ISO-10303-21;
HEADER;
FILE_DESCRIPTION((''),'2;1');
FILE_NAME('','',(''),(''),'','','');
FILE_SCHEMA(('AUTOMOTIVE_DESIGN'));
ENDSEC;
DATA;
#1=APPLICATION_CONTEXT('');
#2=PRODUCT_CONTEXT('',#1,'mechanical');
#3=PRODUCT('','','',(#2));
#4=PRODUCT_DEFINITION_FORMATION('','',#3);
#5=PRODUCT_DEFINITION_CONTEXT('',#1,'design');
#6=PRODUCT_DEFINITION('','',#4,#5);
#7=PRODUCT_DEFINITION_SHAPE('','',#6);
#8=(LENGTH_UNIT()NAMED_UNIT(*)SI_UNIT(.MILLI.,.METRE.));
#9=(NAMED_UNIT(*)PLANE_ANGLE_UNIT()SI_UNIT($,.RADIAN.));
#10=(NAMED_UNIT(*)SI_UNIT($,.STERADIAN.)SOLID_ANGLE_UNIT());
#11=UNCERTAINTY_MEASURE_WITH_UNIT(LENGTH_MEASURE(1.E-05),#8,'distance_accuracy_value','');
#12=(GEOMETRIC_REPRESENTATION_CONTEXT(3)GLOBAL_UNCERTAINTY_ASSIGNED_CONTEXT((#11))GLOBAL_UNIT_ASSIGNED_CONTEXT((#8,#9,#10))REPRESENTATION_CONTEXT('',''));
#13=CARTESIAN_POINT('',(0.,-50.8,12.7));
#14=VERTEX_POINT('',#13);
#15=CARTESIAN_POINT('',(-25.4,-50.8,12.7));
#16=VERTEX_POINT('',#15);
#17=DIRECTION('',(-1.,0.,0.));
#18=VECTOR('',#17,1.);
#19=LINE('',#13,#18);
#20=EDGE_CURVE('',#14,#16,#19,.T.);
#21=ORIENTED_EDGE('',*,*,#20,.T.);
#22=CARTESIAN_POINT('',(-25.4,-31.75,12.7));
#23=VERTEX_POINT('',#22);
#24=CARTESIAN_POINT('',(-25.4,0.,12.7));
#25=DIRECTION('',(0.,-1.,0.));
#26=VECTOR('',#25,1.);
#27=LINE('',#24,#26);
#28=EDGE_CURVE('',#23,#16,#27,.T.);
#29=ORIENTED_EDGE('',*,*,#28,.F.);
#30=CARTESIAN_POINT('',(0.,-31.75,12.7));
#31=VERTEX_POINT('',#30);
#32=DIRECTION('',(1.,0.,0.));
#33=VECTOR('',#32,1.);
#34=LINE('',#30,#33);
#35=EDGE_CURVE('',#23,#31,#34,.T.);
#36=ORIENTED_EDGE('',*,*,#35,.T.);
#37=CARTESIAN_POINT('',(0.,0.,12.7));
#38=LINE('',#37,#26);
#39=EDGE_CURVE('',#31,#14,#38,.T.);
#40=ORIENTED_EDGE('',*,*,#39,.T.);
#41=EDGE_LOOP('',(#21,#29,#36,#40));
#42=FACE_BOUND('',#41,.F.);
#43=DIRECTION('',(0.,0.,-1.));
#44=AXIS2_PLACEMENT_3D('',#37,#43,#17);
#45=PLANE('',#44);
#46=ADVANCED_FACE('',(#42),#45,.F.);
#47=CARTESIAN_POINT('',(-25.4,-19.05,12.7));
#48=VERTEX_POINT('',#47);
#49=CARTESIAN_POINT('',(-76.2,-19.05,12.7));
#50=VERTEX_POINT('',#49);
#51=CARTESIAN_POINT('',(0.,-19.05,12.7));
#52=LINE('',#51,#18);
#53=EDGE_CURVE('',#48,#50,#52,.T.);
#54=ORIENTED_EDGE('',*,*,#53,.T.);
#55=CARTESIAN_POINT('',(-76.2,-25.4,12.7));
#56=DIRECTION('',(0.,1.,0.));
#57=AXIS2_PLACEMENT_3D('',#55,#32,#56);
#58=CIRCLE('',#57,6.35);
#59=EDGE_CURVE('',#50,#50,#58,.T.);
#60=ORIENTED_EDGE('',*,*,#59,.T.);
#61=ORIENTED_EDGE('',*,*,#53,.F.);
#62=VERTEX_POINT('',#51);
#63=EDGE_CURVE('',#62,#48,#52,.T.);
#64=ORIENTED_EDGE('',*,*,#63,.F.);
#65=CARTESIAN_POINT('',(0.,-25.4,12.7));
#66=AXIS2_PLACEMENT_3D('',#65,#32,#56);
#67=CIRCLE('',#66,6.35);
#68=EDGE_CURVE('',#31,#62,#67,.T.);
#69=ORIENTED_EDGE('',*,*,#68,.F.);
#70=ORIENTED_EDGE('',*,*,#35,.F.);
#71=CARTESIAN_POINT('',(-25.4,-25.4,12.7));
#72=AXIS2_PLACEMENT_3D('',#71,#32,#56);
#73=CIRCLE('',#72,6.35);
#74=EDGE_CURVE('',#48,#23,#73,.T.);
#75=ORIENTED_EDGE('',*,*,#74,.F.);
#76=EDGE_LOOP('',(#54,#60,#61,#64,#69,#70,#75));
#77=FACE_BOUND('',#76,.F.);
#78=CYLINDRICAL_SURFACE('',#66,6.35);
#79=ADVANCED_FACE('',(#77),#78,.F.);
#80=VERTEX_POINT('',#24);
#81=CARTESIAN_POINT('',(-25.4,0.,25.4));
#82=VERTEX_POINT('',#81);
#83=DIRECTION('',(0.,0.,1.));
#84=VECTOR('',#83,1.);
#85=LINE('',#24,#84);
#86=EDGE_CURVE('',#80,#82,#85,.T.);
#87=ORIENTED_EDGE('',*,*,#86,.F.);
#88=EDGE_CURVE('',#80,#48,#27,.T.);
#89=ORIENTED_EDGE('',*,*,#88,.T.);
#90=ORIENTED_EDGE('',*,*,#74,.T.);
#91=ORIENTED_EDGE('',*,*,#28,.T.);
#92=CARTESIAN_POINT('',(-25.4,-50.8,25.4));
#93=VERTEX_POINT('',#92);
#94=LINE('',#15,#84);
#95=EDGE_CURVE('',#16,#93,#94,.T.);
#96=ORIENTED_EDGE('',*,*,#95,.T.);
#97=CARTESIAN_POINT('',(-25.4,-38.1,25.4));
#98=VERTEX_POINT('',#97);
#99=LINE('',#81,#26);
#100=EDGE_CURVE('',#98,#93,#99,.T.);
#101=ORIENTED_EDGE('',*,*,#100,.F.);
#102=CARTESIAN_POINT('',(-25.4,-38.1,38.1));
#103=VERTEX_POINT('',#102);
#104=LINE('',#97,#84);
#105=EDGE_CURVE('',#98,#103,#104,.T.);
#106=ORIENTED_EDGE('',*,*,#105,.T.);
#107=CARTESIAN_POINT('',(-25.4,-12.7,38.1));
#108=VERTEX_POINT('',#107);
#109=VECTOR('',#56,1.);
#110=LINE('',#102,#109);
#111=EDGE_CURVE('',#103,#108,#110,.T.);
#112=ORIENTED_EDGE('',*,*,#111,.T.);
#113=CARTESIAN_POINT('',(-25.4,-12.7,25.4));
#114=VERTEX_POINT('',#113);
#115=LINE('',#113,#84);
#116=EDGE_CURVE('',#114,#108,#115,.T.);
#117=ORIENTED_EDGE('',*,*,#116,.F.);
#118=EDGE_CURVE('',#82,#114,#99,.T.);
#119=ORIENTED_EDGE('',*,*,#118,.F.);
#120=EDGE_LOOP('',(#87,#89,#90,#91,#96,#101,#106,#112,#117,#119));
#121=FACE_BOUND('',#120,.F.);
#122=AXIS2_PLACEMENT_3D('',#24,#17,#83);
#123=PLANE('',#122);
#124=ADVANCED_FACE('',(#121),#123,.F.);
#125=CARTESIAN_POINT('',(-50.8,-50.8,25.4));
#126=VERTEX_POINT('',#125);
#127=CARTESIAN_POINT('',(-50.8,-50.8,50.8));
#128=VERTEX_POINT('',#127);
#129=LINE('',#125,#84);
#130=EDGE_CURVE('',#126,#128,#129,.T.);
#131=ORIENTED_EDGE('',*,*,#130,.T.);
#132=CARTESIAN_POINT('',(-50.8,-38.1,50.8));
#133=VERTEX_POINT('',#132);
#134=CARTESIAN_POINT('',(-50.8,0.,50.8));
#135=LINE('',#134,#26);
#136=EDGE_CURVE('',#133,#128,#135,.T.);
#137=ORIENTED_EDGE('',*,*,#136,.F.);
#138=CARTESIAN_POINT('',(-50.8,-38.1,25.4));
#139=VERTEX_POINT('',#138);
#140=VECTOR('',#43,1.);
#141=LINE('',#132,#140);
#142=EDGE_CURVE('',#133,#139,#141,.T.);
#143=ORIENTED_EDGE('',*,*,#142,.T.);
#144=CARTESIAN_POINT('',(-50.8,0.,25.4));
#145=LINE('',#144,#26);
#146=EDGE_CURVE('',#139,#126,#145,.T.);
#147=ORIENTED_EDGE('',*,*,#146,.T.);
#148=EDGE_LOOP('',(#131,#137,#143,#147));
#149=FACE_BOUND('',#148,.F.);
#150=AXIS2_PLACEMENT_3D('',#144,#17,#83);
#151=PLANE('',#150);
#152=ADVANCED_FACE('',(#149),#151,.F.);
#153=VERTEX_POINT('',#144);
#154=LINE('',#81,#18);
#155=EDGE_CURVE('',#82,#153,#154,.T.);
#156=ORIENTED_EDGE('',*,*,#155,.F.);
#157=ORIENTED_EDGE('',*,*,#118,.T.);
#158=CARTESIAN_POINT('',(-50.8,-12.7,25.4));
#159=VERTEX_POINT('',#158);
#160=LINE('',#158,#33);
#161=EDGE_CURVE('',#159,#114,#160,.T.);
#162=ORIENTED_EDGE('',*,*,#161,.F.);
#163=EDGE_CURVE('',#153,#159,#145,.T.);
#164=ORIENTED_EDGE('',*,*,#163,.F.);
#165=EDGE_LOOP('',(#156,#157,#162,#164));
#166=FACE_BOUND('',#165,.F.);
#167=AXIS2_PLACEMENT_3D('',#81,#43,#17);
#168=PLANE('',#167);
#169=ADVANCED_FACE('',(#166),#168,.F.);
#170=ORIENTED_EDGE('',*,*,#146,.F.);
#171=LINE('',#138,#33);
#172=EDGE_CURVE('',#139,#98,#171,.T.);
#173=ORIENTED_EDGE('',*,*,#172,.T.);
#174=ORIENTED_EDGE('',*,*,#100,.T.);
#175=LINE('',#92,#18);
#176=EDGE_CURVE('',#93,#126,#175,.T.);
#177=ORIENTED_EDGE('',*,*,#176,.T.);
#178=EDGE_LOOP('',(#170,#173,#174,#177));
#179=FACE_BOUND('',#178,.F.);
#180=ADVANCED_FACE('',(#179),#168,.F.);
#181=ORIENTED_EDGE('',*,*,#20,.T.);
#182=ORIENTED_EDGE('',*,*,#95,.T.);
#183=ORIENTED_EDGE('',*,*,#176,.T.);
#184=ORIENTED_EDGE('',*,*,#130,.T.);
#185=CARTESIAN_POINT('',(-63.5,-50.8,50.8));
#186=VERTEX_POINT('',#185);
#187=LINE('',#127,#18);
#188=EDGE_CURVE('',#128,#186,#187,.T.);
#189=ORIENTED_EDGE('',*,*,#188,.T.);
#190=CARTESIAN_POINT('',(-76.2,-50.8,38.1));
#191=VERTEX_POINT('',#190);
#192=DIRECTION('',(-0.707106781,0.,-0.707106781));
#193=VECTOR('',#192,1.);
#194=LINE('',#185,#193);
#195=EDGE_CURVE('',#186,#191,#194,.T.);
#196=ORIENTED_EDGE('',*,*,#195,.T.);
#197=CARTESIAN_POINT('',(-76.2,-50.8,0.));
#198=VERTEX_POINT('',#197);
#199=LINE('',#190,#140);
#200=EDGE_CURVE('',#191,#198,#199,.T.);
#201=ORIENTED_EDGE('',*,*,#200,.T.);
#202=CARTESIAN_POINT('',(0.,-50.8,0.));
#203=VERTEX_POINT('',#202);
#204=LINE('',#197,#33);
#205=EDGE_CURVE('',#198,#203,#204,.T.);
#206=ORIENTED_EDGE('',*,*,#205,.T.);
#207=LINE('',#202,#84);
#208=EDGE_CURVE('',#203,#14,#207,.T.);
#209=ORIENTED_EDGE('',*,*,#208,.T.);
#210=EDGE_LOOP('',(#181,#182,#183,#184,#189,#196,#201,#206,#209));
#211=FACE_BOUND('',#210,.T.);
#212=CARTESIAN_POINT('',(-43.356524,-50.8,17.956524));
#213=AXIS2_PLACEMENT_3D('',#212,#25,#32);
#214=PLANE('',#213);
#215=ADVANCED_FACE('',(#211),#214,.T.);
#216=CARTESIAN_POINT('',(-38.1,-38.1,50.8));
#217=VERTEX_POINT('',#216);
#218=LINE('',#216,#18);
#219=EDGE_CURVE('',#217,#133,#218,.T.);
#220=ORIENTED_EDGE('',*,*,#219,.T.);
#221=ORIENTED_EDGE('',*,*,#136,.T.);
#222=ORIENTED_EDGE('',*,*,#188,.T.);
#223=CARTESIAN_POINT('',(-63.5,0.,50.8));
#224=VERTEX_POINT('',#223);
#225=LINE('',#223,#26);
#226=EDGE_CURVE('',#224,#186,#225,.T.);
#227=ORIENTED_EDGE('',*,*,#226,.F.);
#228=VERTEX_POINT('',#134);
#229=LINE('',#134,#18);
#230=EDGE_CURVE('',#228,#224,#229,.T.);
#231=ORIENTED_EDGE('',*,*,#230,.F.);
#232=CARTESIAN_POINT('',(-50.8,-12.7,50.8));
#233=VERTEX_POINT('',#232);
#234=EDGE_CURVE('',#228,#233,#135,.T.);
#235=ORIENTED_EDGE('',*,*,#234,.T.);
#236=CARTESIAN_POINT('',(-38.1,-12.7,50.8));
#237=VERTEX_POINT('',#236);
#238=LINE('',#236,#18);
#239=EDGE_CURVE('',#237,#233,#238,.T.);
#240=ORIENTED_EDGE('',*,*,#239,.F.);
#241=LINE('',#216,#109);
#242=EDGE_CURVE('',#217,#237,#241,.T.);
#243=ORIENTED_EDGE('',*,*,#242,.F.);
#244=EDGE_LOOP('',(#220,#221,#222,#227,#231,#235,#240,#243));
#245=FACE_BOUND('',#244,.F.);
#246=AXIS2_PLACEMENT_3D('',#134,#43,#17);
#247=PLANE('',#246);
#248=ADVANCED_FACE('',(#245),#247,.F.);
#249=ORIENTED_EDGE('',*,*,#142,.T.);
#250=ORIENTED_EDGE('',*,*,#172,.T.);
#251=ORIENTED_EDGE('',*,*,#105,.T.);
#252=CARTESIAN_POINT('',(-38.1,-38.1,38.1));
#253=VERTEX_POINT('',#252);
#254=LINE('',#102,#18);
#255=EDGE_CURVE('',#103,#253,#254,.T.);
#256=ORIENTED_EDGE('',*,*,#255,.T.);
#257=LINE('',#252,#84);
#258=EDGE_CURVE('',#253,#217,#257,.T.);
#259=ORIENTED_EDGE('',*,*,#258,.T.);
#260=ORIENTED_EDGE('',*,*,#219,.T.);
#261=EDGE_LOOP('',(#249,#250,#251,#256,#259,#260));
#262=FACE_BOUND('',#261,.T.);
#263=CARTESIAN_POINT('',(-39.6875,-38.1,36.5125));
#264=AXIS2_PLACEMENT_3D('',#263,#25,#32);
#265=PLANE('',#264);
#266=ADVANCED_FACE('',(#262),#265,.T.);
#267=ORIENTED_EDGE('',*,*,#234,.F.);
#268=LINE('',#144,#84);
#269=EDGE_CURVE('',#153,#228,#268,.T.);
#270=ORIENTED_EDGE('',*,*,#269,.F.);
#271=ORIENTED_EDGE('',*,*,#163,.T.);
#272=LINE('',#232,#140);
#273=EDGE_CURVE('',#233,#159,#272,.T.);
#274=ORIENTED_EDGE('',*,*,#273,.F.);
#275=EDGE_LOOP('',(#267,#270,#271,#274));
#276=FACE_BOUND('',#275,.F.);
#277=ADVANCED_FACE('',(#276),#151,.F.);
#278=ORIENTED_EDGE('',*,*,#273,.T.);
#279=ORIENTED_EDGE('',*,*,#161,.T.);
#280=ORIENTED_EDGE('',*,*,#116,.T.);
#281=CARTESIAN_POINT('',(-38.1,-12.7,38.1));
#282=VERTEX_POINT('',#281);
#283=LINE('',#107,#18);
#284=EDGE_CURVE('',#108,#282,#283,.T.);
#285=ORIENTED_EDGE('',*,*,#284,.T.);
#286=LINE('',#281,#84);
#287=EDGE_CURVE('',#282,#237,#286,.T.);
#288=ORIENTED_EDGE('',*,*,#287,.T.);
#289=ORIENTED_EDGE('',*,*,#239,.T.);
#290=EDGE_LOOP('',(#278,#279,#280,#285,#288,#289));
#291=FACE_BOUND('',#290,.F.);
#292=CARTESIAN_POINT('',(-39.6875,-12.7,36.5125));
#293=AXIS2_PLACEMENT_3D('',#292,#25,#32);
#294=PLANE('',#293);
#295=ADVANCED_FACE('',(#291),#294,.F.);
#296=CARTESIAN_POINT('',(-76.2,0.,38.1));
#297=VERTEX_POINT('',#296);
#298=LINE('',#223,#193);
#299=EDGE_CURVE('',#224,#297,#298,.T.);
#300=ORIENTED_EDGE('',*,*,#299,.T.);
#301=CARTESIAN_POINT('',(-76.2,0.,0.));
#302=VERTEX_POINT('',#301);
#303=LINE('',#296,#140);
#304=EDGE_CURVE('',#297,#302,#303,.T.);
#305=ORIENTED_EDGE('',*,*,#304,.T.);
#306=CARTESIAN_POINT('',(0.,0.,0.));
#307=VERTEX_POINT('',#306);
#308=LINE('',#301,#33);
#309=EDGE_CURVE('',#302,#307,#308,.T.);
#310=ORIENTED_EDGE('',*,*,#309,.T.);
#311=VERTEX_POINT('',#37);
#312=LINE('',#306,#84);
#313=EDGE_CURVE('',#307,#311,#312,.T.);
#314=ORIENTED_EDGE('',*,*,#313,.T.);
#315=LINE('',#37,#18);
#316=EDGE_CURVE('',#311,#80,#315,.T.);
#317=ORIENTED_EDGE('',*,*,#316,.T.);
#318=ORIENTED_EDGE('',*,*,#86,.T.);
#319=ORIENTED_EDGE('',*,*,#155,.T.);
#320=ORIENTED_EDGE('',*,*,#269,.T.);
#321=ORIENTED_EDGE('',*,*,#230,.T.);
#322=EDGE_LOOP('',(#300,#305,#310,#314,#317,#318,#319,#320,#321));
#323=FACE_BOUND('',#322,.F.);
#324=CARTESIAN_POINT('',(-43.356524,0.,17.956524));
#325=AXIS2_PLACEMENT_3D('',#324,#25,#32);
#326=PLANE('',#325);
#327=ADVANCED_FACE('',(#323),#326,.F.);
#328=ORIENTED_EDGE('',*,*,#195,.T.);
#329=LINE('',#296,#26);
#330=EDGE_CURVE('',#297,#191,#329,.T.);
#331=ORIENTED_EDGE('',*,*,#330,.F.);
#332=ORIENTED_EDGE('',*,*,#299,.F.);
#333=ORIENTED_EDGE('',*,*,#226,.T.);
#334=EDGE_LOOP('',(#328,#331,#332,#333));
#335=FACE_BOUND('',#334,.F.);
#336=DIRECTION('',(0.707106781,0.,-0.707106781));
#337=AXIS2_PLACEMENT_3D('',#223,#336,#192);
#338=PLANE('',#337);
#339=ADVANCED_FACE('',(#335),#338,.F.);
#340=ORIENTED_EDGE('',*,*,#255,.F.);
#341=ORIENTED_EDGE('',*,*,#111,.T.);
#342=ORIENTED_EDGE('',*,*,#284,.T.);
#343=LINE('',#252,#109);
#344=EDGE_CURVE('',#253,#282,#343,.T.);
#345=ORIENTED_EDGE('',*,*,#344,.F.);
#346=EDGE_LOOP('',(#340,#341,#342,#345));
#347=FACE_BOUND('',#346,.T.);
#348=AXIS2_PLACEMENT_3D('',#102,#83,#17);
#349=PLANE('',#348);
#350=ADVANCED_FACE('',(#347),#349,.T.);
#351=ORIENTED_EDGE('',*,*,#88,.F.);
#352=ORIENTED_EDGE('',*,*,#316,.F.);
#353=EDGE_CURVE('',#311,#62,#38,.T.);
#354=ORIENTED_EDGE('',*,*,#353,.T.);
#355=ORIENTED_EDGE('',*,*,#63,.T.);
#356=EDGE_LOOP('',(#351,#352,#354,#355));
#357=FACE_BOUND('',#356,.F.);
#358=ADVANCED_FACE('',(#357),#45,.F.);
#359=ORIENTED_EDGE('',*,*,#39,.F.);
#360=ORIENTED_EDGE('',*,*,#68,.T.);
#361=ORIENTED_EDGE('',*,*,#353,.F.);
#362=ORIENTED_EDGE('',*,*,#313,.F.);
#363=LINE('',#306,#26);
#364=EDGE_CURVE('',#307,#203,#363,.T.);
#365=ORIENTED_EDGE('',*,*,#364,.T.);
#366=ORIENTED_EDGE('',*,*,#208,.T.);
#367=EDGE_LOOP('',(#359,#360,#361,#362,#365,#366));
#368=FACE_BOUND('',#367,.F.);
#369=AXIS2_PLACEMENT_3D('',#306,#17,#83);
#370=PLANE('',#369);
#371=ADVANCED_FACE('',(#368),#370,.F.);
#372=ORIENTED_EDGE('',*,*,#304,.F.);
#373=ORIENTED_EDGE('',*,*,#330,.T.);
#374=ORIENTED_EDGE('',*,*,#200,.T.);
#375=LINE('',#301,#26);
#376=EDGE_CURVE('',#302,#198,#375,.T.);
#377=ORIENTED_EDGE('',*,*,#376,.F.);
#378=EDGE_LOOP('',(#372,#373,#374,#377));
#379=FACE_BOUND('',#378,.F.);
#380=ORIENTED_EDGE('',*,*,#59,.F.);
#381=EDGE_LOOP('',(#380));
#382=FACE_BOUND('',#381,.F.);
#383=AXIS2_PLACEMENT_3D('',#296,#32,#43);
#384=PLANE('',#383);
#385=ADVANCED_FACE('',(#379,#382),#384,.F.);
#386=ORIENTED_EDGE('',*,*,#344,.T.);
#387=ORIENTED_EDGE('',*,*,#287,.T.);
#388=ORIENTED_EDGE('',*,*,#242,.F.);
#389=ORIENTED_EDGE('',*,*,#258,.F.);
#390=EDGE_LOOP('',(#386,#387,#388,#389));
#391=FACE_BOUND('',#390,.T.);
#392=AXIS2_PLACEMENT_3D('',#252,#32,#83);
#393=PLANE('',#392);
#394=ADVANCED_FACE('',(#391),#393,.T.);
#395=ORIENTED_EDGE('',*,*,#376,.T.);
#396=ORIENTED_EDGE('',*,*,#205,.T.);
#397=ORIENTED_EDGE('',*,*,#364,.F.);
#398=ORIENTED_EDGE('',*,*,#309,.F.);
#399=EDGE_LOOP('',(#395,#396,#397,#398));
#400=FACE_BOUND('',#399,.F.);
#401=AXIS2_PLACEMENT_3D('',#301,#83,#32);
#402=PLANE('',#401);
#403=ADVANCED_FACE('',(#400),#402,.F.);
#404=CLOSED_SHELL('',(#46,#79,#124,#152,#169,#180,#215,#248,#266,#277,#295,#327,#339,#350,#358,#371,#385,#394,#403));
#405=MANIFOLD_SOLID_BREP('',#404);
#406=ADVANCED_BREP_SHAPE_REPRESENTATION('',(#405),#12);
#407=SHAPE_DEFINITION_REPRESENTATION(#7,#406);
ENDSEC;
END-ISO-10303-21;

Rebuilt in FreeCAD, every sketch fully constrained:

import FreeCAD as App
import Part
import Sketcher
Q = App.Units.Quantity

doc = App.newDocument("Part")
params = doc.addObject("Spreadsheet::Sheet", "Params")
for row, (alias, value) in enumerate([
    ("sketch1_width", "3 in"),
    ("sketch1_width2", "1 in"),
    ("sketch1_width3", "0.5 in"),
    ("sketch1_height", "1.5 in"),
    ("pad1_length", "2 in"),
    ("sketch2_width", "1 in"),
    ("pad2_length", "1 in"),
    ("sketch3_diameter", "0.5 in"),
    ("pocket1_length", "3 in"),
], start=1):
    params.set(f"A{row}", alias)
    params.set(f"B{row}", "=" + value)
    params.setAlias(f"B{row}", alias)

body = doc.addObject("PartDesign::Body", "Body")

sketch1 = body.newObject("Sketcher::SketchObject", "Sketch")
sketch1.AttachmentSupport = (doc.getObject("XZ_Plane"), [""])
sketch1.MapMode = "FlatFace"
sketch1.addGeometry([
    Part.LineSegment(App.Vector(-76, 0, 0), App.Vector(0, 0, 0)),
    Part.LineSegment(App.Vector(0, 0, 0), App.Vector(0, 13, 0)),
    Part.LineSegment(App.Vector(0, 13, 0), App.Vector(-25, 13, 0)),
    Part.LineSegment(App.Vector(-25, 13, 0), App.Vector(-25, 25, 0)),
    Part.LineSegment(App.Vector(-25, 25, 0), App.Vector(-51, 25, 0)),
    Part.LineSegment(App.Vector(-51, 25, 0), App.Vector(-51, 51, 0)),
    Part.LineSegment(App.Vector(-51, 51, 0), App.Vector(-64, 51, 0)),
    Part.LineSegment(App.Vector(-64, 51, 0), App.Vector(-76, 38, 0)),
    Part.LineSegment(App.Vector(-76, 38, 0), App.Vector(-76, 0, 0)),
], False)
sketch1.addConstraint([
    Sketcher.Constraint("Coincident", 0, 2, 1, 1),
    Sketcher.Constraint("Coincident", 1, 2, 2, 1),
    Sketcher.Constraint("Coincident", 2, 2, 3, 1),
    Sketcher.Constraint("Coincident", 3, 2, 4, 1),
    Sketcher.Constraint("Coincident", 4, 2, 5, 1),
    Sketcher.Constraint("Coincident", 5, 2, 6, 1),
    Sketcher.Constraint("Coincident", 6, 2, 7, 1),
    Sketcher.Constraint("Coincident", 7, 2, 8, 1),
    Sketcher.Constraint("Coincident", 8, 2, 0, 1),
    Sketcher.Constraint("Horizontal", 0),
    Sketcher.Constraint("Vertical", 1),
    Sketcher.Constraint("Horizontal", 2),
    Sketcher.Constraint("Vertical", 3),
    Sketcher.Constraint("Horizontal", 4),
    Sketcher.Constraint("Vertical", 5),
    Sketcher.Constraint("Horizontal", 6),
    Sketcher.Constraint("Vertical", 8),
    Sketcher.Constraint("Coincident", 0, 2, -1, 1),
    Sketcher.Constraint("Equal", 2, 4),
    Sketcher.Constraint("Equal", 6, 1),
    Sketcher.Constraint("Equal", 1, 3),
    Sketcher.Constraint("Equal", 4, 5),
    Sketcher.Constraint("DistanceX", 0, 1, 0, 2, Q("3 in")),
    Sketcher.Constraint("DistanceX", 2, 2, 2, 1, Q("1 in")),
    Sketcher.Constraint("DistanceX", 6, 2, 6, 1, Q("0.5 in")),
    Sketcher.Constraint("DistanceY", 8, 2, 8, 1, Q("1.5 in")),
])
sketch1.setExpression("Constraints[22]", "Params.sketch1_width")
sketch1.setExpression("Constraints[23]", "Params.sketch1_width2")
sketch1.setExpression("Constraints[24]", "Params.sketch1_width3")
sketch1.setExpression("Constraints[25]", "Params.sketch1_height")
pad1 = body.newObject("PartDesign::Pad", "Pad")
pad1.Profile = sketch1
pad1.setExpression("Length", "Params.pad1_length")

sketch2 = body.newObject("Sketcher::SketchObject", "Sketch001")
sketch2.AttachmentSupport = (doc.getObject("XZ_Plane"), [""])
sketch2.MapMode = "FlatFace"
sketch2.AttachmentOffset = App.Placement(App.Vector(0, 0, 1.5 * 25.4), App.Rotation())
sketch2.addGeometry([
    Part.LineSegment(App.Vector(-38, 51, 0), App.Vector(-51, 51, 0)),
    Part.LineSegment(App.Vector(-51, 51, 0), App.Vector(-51, 25, 0)),
    Part.LineSegment(App.Vector(-51, 25, 0), App.Vector(-25, 25, 0)),
    Part.LineSegment(App.Vector(-25, 25, 0), App.Vector(-25, 38, 0)),
    Part.LineSegment(App.Vector(-25, 38, 0), App.Vector(-38, 38, 0)),
    Part.LineSegment(App.Vector(-38, 38, 0), App.Vector(-38, 51, 0)),
], False)
sketch2.addConstraint([
    Sketcher.Constraint("Coincident", 0, 2, 1, 1),
    Sketcher.Constraint("Coincident", 1, 2, 2, 1),
    Sketcher.Constraint("Coincident", 2, 2, 3, 1),
    Sketcher.Constraint("Coincident", 3, 2, 4, 1),
    Sketcher.Constraint("Coincident", 4, 2, 5, 1),
    Sketcher.Constraint("Coincident", 5, 2, 0, 1),
    Sketcher.Constraint("Horizontal", 0),
    Sketcher.Constraint("Vertical", 1),
    Sketcher.Constraint("Horizontal", 2),
    Sketcher.Constraint("Vertical", 3),
    Sketcher.Constraint("Horizontal", 4),
    Sketcher.Constraint("Vertical", 5),
    Sketcher.Constraint("Equal", 0, 4),
    Sketcher.Constraint("Equal", 2, 1),
    Sketcher.Constraint("Equal", 4, 3),
    Sketcher.Constraint("DistanceX", 2, 1, 2, 2, Q("1 in")),
    Sketcher.Constraint("DistanceX", 0, 2, -1, 1, Q("2 in")),
    Sketcher.Constraint("DistanceY", -1, 1, 0, 2, Q("2 in")),
])
sketch2.setExpression("Constraints[15]", "Params.sketch2_width")
pad2 = body.newObject("PartDesign::Pad", "Pad001")
pad2.Profile = sketch2
pad2.setExpression("Length", "Params.pad2_length")
pad2.Reversed = True

sketch3 = body.newObject("Sketcher::SketchObject", "Sketch002")
sketch3.AttachmentSupport = (doc.getObject("YZ_Plane"), [""])
sketch3.MapMode = "FlatFace"
sketch3.addGeometry(Part.Circle(App.Vector(-25, 13, 0), App.Vector(0, 0, 1), 6), False)
sketch3.addConstraint([
    Sketcher.Constraint("Diameter", 0, Q("0.5 in")),
    Sketcher.Constraint("DistanceX", 0, 3, -1, 1, Q("1 in")),
    Sketcher.Constraint("DistanceY", -1, 1, 0, 3, Q("0.5 in")),
])
sketch3.setExpression("Constraints[0]", "Params.sketch3_diameter")
pocket1 = body.newObject("PartDesign::Pocket", "Pocket")
pocket1.Profile = sketch3
pocket1.setExpression("Length", "Params.pocket1_length")

doc.recompute()
